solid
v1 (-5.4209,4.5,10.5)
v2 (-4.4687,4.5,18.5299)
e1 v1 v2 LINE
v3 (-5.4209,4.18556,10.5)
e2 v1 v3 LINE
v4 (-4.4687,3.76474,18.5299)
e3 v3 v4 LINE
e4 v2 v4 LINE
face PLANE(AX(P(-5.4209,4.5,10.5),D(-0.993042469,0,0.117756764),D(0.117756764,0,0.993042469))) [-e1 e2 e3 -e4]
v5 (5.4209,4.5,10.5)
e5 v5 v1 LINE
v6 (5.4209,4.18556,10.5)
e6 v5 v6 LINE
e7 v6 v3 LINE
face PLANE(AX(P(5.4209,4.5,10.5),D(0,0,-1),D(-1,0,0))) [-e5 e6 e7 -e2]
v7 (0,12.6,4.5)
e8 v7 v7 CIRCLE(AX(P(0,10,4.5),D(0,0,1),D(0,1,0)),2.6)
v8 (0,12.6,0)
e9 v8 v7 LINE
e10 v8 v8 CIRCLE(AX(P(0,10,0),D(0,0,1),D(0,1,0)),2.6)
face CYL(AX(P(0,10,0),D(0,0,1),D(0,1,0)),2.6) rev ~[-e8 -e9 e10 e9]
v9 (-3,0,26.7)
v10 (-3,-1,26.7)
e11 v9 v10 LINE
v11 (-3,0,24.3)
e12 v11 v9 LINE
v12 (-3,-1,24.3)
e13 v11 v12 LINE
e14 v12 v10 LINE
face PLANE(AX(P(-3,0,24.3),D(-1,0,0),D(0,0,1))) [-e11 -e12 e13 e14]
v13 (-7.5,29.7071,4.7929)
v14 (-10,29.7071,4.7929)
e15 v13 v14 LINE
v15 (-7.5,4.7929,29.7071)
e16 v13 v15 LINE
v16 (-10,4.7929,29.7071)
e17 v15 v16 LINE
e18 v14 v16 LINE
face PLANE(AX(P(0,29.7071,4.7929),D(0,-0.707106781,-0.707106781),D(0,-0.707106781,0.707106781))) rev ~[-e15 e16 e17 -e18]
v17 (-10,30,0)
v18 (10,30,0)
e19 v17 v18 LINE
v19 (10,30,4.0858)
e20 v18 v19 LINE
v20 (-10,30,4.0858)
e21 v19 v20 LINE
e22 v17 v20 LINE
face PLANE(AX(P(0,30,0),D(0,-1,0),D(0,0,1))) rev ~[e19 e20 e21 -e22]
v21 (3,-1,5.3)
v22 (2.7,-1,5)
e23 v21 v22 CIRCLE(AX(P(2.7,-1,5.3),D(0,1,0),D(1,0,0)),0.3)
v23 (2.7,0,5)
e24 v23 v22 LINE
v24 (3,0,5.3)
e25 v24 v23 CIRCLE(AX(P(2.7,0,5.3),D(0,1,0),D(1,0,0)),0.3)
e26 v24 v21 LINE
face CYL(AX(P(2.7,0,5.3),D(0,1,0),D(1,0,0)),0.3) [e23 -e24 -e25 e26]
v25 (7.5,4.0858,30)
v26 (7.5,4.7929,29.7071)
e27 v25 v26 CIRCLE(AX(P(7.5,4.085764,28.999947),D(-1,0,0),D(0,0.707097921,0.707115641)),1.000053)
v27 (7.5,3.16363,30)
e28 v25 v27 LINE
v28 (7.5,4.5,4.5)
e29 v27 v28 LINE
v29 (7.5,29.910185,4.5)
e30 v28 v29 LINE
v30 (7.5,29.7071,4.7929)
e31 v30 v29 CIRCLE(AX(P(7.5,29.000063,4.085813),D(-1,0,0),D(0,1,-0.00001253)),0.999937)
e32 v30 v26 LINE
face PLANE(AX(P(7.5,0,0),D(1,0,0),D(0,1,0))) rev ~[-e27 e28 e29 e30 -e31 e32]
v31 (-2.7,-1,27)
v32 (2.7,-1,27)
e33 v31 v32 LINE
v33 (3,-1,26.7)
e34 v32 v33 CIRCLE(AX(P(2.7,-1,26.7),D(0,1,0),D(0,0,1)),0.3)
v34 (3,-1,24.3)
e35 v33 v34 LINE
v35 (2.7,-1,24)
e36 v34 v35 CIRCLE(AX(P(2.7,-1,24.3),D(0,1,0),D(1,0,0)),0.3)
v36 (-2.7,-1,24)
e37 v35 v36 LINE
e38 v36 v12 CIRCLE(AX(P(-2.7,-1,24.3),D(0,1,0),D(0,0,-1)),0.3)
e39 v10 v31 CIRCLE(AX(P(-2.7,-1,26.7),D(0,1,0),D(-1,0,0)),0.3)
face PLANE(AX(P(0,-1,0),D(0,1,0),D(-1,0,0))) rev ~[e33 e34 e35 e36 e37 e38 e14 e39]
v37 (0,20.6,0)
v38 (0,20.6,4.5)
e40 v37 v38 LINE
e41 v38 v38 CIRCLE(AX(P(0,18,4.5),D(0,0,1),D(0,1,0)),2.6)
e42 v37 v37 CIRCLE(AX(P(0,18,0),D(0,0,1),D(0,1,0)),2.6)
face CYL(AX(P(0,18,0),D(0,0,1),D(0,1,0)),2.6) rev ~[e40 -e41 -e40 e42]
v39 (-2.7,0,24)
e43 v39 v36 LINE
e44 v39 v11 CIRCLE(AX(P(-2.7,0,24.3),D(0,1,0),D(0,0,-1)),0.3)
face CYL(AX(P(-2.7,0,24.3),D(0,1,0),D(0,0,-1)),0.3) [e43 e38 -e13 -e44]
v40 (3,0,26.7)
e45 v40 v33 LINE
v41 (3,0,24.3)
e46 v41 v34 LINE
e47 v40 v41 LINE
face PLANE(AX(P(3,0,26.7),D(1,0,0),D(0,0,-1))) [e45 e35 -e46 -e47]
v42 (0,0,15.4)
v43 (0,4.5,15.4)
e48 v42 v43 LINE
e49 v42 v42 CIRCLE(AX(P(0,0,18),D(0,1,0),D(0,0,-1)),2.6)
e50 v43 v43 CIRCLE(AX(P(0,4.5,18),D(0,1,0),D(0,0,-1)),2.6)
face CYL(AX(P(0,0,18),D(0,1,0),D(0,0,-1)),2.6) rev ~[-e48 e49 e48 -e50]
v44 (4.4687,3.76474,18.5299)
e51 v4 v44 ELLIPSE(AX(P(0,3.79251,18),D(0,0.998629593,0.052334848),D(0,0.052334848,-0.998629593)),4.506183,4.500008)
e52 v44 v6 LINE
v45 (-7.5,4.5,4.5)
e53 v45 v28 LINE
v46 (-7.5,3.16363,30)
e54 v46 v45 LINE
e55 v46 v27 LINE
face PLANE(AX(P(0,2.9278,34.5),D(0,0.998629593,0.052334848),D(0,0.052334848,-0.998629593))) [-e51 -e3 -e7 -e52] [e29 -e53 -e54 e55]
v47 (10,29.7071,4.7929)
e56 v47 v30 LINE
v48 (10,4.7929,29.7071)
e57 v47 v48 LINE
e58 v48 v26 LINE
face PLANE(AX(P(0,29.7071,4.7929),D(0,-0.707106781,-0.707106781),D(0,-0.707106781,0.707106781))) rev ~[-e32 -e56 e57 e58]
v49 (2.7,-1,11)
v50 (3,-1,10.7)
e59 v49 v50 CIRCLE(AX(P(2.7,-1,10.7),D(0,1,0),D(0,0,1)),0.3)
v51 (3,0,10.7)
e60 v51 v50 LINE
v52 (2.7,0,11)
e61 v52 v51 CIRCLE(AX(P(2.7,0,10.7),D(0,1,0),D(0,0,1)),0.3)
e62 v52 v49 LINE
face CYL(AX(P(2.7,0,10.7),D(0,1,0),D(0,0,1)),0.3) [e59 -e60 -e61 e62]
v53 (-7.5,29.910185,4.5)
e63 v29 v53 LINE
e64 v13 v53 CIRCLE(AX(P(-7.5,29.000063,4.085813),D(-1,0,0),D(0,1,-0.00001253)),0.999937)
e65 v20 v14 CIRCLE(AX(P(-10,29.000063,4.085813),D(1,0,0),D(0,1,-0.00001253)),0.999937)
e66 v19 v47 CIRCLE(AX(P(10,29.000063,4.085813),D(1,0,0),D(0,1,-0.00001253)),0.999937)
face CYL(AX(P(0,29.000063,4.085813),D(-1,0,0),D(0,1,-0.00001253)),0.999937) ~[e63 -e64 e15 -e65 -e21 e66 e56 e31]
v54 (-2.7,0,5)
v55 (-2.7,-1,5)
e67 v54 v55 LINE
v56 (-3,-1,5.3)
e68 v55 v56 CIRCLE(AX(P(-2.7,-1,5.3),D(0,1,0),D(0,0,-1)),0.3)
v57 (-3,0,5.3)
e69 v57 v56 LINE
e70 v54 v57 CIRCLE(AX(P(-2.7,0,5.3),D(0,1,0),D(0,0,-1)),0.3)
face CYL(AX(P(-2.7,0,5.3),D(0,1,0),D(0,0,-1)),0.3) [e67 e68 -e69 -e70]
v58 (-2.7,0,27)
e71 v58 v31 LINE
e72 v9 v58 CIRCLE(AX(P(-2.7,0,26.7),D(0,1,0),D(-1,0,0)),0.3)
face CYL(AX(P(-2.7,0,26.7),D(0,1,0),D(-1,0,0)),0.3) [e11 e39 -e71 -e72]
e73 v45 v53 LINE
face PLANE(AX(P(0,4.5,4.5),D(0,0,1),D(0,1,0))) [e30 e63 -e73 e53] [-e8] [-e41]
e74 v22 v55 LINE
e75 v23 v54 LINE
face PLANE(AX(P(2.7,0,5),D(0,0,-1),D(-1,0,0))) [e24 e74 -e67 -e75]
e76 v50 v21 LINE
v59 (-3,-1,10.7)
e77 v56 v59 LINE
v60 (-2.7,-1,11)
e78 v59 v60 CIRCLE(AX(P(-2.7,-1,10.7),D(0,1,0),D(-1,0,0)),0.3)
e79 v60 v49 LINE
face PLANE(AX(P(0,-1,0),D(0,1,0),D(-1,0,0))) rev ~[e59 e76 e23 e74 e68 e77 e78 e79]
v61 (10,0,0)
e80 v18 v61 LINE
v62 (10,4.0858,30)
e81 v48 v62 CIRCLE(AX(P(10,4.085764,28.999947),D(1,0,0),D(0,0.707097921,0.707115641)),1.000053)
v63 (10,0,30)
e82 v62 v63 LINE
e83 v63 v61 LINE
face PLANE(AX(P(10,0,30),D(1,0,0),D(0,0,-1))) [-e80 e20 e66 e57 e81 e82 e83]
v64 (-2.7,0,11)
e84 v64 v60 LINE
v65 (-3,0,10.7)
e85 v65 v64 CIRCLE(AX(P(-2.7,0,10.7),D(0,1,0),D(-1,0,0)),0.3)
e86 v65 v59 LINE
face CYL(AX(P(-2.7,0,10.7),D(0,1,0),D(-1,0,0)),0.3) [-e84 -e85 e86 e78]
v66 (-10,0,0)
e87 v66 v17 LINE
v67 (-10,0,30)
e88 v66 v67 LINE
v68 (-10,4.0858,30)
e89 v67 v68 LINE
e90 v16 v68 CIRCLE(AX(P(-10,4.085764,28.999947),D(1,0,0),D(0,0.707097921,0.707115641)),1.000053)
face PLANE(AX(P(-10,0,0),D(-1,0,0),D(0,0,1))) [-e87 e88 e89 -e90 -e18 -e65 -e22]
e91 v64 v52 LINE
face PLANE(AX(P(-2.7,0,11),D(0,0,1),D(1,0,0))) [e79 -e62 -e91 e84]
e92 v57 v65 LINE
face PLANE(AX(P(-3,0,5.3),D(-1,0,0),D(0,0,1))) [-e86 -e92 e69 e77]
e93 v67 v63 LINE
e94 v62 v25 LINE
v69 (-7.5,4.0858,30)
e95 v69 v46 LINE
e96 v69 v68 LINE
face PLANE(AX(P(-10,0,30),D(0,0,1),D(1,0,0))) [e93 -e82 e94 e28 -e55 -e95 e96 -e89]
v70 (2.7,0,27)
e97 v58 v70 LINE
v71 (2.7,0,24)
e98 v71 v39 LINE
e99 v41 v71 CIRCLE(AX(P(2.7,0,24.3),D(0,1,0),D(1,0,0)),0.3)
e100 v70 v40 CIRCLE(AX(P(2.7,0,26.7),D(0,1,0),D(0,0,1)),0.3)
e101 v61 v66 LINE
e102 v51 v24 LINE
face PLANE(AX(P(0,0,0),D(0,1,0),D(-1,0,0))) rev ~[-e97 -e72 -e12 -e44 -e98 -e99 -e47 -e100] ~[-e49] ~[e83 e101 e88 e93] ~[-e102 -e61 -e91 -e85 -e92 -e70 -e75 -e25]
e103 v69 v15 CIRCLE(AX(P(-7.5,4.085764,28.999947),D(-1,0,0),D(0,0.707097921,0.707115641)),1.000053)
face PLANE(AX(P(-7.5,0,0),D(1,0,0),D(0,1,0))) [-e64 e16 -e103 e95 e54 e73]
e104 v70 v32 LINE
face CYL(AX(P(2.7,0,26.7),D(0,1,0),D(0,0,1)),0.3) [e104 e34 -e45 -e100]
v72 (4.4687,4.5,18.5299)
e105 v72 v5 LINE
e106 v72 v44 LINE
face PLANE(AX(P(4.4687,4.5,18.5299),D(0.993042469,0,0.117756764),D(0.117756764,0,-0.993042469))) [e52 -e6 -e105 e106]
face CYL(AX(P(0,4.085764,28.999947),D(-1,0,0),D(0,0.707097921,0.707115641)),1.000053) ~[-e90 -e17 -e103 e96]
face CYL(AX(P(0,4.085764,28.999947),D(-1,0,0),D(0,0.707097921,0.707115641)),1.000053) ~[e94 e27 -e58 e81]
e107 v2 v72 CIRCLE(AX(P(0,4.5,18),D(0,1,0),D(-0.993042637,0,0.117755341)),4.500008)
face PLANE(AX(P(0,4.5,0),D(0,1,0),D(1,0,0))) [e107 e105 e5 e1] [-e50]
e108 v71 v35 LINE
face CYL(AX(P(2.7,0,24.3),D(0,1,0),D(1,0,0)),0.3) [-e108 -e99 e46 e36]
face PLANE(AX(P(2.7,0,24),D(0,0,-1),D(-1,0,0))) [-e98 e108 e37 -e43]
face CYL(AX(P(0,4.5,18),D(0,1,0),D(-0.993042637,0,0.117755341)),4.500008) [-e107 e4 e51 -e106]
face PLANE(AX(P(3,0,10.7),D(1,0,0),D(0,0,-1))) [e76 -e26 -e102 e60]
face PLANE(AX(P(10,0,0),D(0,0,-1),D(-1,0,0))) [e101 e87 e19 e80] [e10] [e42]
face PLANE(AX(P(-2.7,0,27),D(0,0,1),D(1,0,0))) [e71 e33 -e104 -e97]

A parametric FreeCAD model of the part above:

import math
import FreeCAD as App
import Part
import Sketcher
from FreeCAD import Vector
Q = App.Units.Quantity


def add_polygon(sketch, points):
    """Adds a closed chain of lines whose ends are joined by coincident constraints."""
    first, n = sketch.GeometryCount, len(points)
    for a, b in zip(points, points[1:] + points[:1]):
        sketch.addGeometry(Part.LineSegment(App.Vector(*a, 0), App.Vector(*b, 0)), False)
    for i in range(n):
        sketch.addConstraint(Sketcher.Constraint("Coincident", first + i, 2, first + (i + 1) % n, 1))

doc = App.newDocument("Part")
body = doc.addObject("PartDesign::Body", "Body")

sketch1 = body.newObject("Sketcher::SketchObject", "Sketch")
sketch1.AttachmentSupport = (doc.getObject("YZ_Plane"), [""])
sketch1.MapMode = "FlatFace"
sketch1.addGeometry(Part.LineSegment(Vector(4.1, 30, 0), Vector(0, 30, 0)), False)
sketch1.addGeometry(Part.LineSegment(Vector(0, 30, 0), Vector(0, 0, 0)), False)
sketch1.addGeometry(Part.LineSegment(Vector(0, 0, 0), Vector(30, 0, 0)), False)
sketch1.addGeometry(Part.LineSegment(Vector(30, 0, 0), Vector(30, 4.1, 0)), False)
sketch1.addGeometry(Part.ArcOfCircle(Part.Circle(Vector(29, 4.1, 0), Vector(0, 0, 1), 1), math.radians(0), math.radians(45)), False)
sketch1.addGeometry(Part.LineSegment(Vector(29.7, 4.8, 0), Vector(4.8, 29.7, 0)), False)
sketch1.addGeometry(Part.ArcOfCircle(Part.Circle(Vector(4.1, 29, 0), Vector(0, 0, 1), 1), math.radians(45), math.radians(90)), False)
sketch1.addConstraint(Sketcher.Constraint("Coincident", 0, 2, 1, 1))
sketch1.addConstraint(Sketcher.Constraint("Coincident", 1, 2, 2, 1))
sketch1.addConstraint(Sketcher.Constraint("Coincident", 2, 2, 3, 1))
sketch1.addConstraint(Sketcher.Constraint("Tangent", 3, 2, 4, 1))
sketch1.addConstraint(Sketcher.Constraint("Tangent", 4, 2, 5, 1))
sketch1.addConstraint(Sketcher.Constraint("Tangent", 5, 2, 6, 1))
sketch1.addConstraint(Sketcher.Constraint("Tangent", 6, 2, 0, 1))
sketch1.addConstraint(Sketcher.Constraint("Horizontal", 0))
sketch1.addConstraint(Sketcher.Constraint("Vertical", 1))
sketch1.addConstraint(Sketcher.Constraint("Horizontal", 2))
sketch1.addConstraint(Sketcher.Constraint("Vertical", 3))
sketch1.addConstraint(Sketcher.Constraint("Coincident", 1, 2, -1, 1))
sketch1.addConstraint(Sketcher.Constraint("Equal", 4, 6))
sketch1.addConstraint(Sketcher.Constraint("Equal", 2, 1))
sketch1.addConstraint(Sketcher.Constraint("Equal", 0, 3))
sketch1.addConstraint(Sketcher.Constraint("Radius", 4, 1.0))
sketch1.addConstraint(Sketcher.Constraint("DistanceX", 2, 1, 2, 2, 30.0))
sketch1.addConstraint(Sketcher.Constraint("Distance", 5, 35.234))
pad1 = body.newObject("PartDesign::Pad", "Pad")
pad1.Profile = sketch1
pad1.Length = 20
pad1.Midplane = True

sketch2 = body.newObject("Sketcher::SketchObject", "Sketch001")
sketch2.AttachmentSupport = (doc.getObject("YZ_Plane"), [""])
sketch2.MapMode = "FlatFace"
add_polygon(sketch2, [(34, 34), (3, 34), (4, 4), (34, 4)])
sketch2.addConstraint(Sketcher.Constraint("Horizontal", 0))
sketch2.addConstraint(Sketcher.Constraint("Horizontal", 2))
sketch2.addConstraint(Sketcher.Constraint("Vertical", 3))
sketch2.addConstraint(Sketcher.Constraint("Equal", 2, 3))
sketch2.addConstraint(Sketcher.Constraint("DistanceX", 2, 1, 2, 2, 30.0))
sketch2.addConstraint(Sketcher.Constraint("Angle", 1, Q("-87 deg")))
sketch2.addConstraint(Sketcher.Constraint("DistanceY", -1, 1, 0, 2, 34.5))
sketch2.addConstraint(Sketcher.Constraint("DistanceX", -1, 1, 1, 2, 4.5))
pocket1 = body.newObject("PartDesign::Pocket", "Pocket")
pocket1.Profile = sketch2
pocket1.Length = 15
pocket1.Midplane = True

sketch3 = body.newObject("Sketcher::SketchObject", "Sketch002")
sketch3.AttachmentSupport = (doc.getObject("XZ_Plane"), [""])
sketch3.MapMode = "FlatFace"
sketch3.AttachmentOffset = App.Placement(Vector(0, 0, -4.5), App.Rotation())
sketch3.addGeometry(Part.LineSegment(Vector(5.4, 10.5, 0), Vector(-5.4, 10.5, 0)), False)
sketch3.addGeometry(Part.LineSegment(Vector(-5.4, 10.5, 0), Vector(-4.5, 18.5, 0)), False)
sketch3.addGeometry(Part.ArcOfCircle(Part.Circle(Vector(0, 18, 0), Vector(0, 0, 1), 4.5), math.radians(7), math.radians(173)), False)
sketch3.addGeometry(Part.LineSegment(Vector(4.5, 18.5, 0), Vector(5.4, 10.5, 0)), False)
sketch3.addConstraint(Sketcher.Constraint("Coincident", 0, 2, 1, 1))
sketch3.addConstraint(Sketcher.Constraint("Tangent", 1, 2, 2, 2))
sketch3.addConstraint(Sketcher.Constraint("Tangent", 2, 1, 3, 1))
sketch3.addConstraint(Sketcher.Constraint("Coincident", 3, 2, 0, 1))
sketch3.addConstraint(Sketcher.Constraint("Horizontal", 0))
sketch3.addConstraint(Sketcher.Constraint("Symmetric", 1, 2, 2, 1, -2))
sketch3.addConstraint(Sketcher.Constraint("Radius", 2, 4.5))
sketch3.addConstraint(Sketcher.Constraint("DistanceY", -1, 1, 2, 3, 18.0))
sketch3.addConstraint(Sketcher.Constraint("DistanceY", -1, 1, 0, 2, 10.5))
sketch3.addConstraint(Sketcher.Constraint("DistanceY", -1, 1, 1, 2, 18.53))
pad2 = body.newObject("PartDesign::Pad", "Pad001")
pad2.Profile = sketch3
pad2.Length = 2.25

sketch4 = body.newObject("Sketcher::SketchObject", "Sketch003")
sketch4.AttachmentSupport = (doc.getObject("XY_Plane"), [""])
sketch4.MapMode = "FlatFace"
sketch4.addGeometry(Part.Circle(Vector(0, 18, 0), Vector(0, 0, 1), 2.6), False)
sketch4.addConstraint(Sketcher.Constraint("PointOnObject", 0, 3, -2))
sketch4.addConstraint(Sketcher.Constraint("Diameter", 0, 5.2))
sketch4.addConstraint(Sketcher.Constraint("DistanceY", -1, 1, 0, 3, 18.0))
doc.recompute()
hole = body.newObject("PartDesign::Hole", "Hole")
hole.Profile = sketch4
hole.ThreadType = "None"
hole.Diameter = 5.2
hole.DepthType = "Dimension"
hole.Depth = 4.5
hole.DrillPoint = "Flat"
hole.Reversed = True

sketch5 = body.newObject("Sketcher::SketchObject", "Sketch004")
sketch5.AttachmentSupport = (doc.getObject("XY_Plane"), [""])
sketch5.MapMode = "FlatFace"
sketch5.addGeometry(Part.Circle(Vector(0, 10, 0), Vector(0, 0, 1), 2.6), False)
sketch5.addConstraint(Sketcher.Constraint("PointOnObject", 0, 3, -2))
sketch5.addConstraint(Sketcher.Constraint("Diameter", 0, 5.2))
sketch5.addConstraint(Sketcher.Constraint("DistanceY", -1, 1, 0, 3, 10.0))
doc.recompute()
hole2 = body.newObject("PartDesign::Hole", "Hole001")
hole2.Profile = sketch5
hole2.ThreadType = "None"
hole2.Diameter = 5.2
hole2.DepthType = "Dimension"
hole2.Depth = 4.5
hole2.DrillPoint = "Flat"
hole2.Reversed = True

sketch6 = body.newObject("Sketcher::SketchObject", "Sketch005")
sketch6.AttachmentSupport = (doc.getObject("XZ_Plane"), [""])
sketch6.MapMode = "FlatFace"
sketch6.addGeometry(Part.Circle(Vector(0, 18, 0), Vector(0, 0, 1), 2.6), False)
sketch6.addConstraint(Sketcher.Constraint("PointOnObject", 0, 3, -2))
sketch6.addConstraint(Sketcher.Constraint("Diameter", 0, 5.2))
sketch6.addConstraint(Sketcher.Constraint("DistanceY", -1, 1, 0, 3, 18.0))
doc.recompute()
hole3 = body.newObject("PartDesign::Hole", "Hole002")
hole3.Profile = sketch6
hole3.ThreadType = "None"
hole3.Diameter = 5.2
hole3.DepthType = "Dimension"
hole3.Depth = 4.5
hole3.DrillPoint = "Flat"

sketch7 = body.newObject("Sketcher::SketchObject", "Sketch006")
sketch7.AttachmentSupport = (doc.getObject("XZ_Plane"), [""])
sketch7.MapMode = "FlatFace"
add_polygon(sketch7, [(10, 0), (-10, 0), (-10, 30), (10, 30)])
sketch7.addConstraint(Sketcher.Constraint("Horizontal", 0))
sketch7.addConstraint(Sketcher.Constraint("Vertical", 1))
sketch7.addConstraint(Sketcher.Constraint("Horizontal", 2))
sketch7.addConstraint(Sketcher.Constraint("Vertical", 3))
sketch7.addConstraint(Sketcher.Constraint("Symmetric", 0, 2, 3, 2, -1, 1))
sketch7.addConstraint(Sketcher.Constraint("DistanceX", 0, 2, 0, 1, 20.0))
sketch7.addConstraint(Sketcher.Constraint("DistanceY", 1, 1, 1, 2, 30.0))
pad3 = body.newObject("PartDesign::Pad", "Pad002")
pad3.Profile = sketch7
pad3.Length = 1

sketch8 = body.newObject("Sketcher::SketchObject", "Sketch007")
sketch8.AttachmentSupport = (doc.getObject("XZ_Plane"), [""])
sketch8.MapMode = "FlatFace"
add_polygon(sketch8, [(10, 0), (-10, 0), (-10, 30), (10, 30)])
sketch8.addGeometry(Part.ArcOfCircle(Part.Circle(Vector(-2.7, 10.7, 0), Vector(0, 0, 1), 0.3), math.radians(90), math.radians(180)), False)
sketch8.addGeometry(Part.LineSegment(Vector(-3, 10.7, 0), Vector(-3, 5.3, 0)), False)
sketch8.addGeometry(Part.ArcOfCircle(Part.Circle(Vector(-2.7, 5.3, 0), Vector(0, 0, 1), 0.3), math.radians(180), math.radians(270)), False)
sketch8.addGeometry(Part.LineSegment(Vector(-2.7, 5, 0), Vector(2.7, 5, 0)), False)
sketch8.addGeometry(Part.ArcOfCircle(Part.Circle(Vector(2.7, 5.3, 0), Vector(0, 0, 1), 0.3), math.radians(-90), math.radians(0)), False)
sketch8.addGeometry(Part.LineSegment(Vector(3, 5.3, 0), Vector(3, 10.7, 0)), False)
sketch8.addGeometry(Part.ArcOfCircle(Part.Circle(Vector(2.7, 10.7, 0), Vector(0, 0, 1), 0.3), math.radians(0), math.radians(90)), False)
sketch8.addGeometry(Part.LineSegment(Vector(2.7, 11, 0), Vector(-2.7, 11, 0)), False)
sketch8.addGeometry(Part.ArcOfCircle(Part.Circle(Vector(-2.7, 26.7, 0), Vector(0, 0, 1), 0.3), math.radians(90), math.radians(180)), False)
sketch8.addGeometry(Part.LineSegment(Vector(-3, 26.7, 0), Vector(-3, 24.3, 0)), False)
sketch8.addGeometry(Part.ArcOfCircle(Part.Circle(Vector(-2.7, 24.3, 0), Vector(0, 0, 1), 0.3), math.radians(180), math.radians(270)), False)
sketch8.addGeometry(Part.LineSegment(Vector(-2.7, 24, 0), Vector(2.7, 24, 0)), False)
sketch8.addGeometry(Part.ArcOfCircle(Part.Circle(Vector(2.7, 24.3, 0), Vector(0, 0, 1), 0.3), math.radians(-90), math.radians(0)), False)
sketch8.addGeometry(Part.LineSegment(Vector(3, 24.3, 0), Vector(3, 26.7, 0)), False)
sketch8.addGeometry(Part.ArcOfCircle(Part.Circle(Vector(2.7, 26.7, 0), Vector(0, 0, 1), 0.3), math.radians(0), math.radians(90)), False)
sketch8.addGeometry(Part.LineSegment(Vector(2.7, 27, 0), Vector(-2.7, 27, 0)), False)
sketch8.addConstraint(Sketcher.Constraint("Tangent", 4, 2, 5, 1))
sketch8.addConstraint(Sketcher.Constraint("Tangent", 5, 2, 6, 1))
sketch8.addConstraint(Sketcher.Constraint("Tangent", 6, 2, 7, 1))
sketch8.addConstraint(Sketcher.Constraint("Tangent", 7, 2, 8, 1))
sketch8.addConstraint(Sketcher.Constraint("Tangent", 8, 2, 9, 1))
sketch8.addConstraint(Sketcher.Constraint("Tangent", 9, 2, 10, 1))
sketch8.addConstraint(Sketcher.Constraint("Tangent", 10, 2, 11, 1))
sketch8.addConstraint(Sketcher.Constraint("Tangent", 11, 2, 4, 1))
sketch8.addConstraint(Sketcher.Constraint("Tangent", 12, 2, 13, 1))
sketch8.addConstraint(Sketcher.Constraint("Tangent", 13, 2, 14, 1))
sketch8.addConstraint(Sketcher.Constraint("Tangent", 14, 2, 15, 1))
sketch8.addConstraint(Sketcher.Constraint("Tangent", 15, 2, 16, 1))
sketch8.addConstraint(Sketcher.Constraint("Tangent", 16, 2, 17, 1))
sketch8.addConstraint(Sketcher.Constraint("Tangent", 17, 2, 18, 1))
sketch8.addConstraint(Sketcher.Constraint("Tangent", 18, 2, 19, 1))
sketch8.addConstraint(Sketcher.Constraint("Tangent", 19, 2, 12, 1))
sketch8.addConstraint(Sketcher.Constraint("Horizontal", 0))
sketch8.addConstraint(Sketcher.Constraint("Vertical", 1))
sketch8.addConstraint(Sketcher.Constraint("Horizontal", 2))
sketch8.addConstraint(Sketcher.Constraint("Vertical", 3))
sketch8.addConstraint(Sketcher.Constraint("Vertical", 5))
sketch8.addConstraint(Sketcher.Constraint("Horizontal", 7))
sketch8.addConstraint(Sketcher.Constraint("Vertical", 9))
sketch8.addConstraint(Sketcher.Constraint("Horizontal", 11))
sketch8.addConstraint(Sketcher.Constraint("Vertical", 13))
sketch8.addConstraint(Sketcher.Constraint("Horizontal", 15))
sketch8.addConstraint(Sketcher.Constraint("Vertical", 17))
sketch8.addConstraint(Sketcher.Constraint("Horizontal", 19))
sketch8.addConstraint(Sketcher.Constraint("Equal", 4, 6))
sketch8.addConstraint(Sketcher.Constraint("Equal", 6, 8))
sketch8.addConstraint(Sketcher.Constraint("Equal", 8, 10))
sketch8.addConstraint(Sketcher.Constraint("Equal", 10, 12))
sketch8.addConstraint(Sketcher.Constraint("Equal", 12, 14))
sketch8.addConstraint(Sketcher.Constraint("Equal", 14, 16))
sketch8.addConstraint(Sketcher.Constraint("Equal", 16, 18))
sketch8.addConstraint(Sketcher.Constraint("Symmetric", 0, 2, 3, 2, -1, 1))
sketch8.addConstraint(Sketcher.Constraint("Vertical", 6, 3, 12, 3))
sketch8.addConstraint(Sketcher.Constraint("Vertical", 10, 3, 16, 3))
sketch8.addConstraint(Sketcher.Constraint("Equal", 19, 5))
sketch8.addConstraint(Sketcher.Constraint("Radius", 4, 0.3))
sketch8.addConstraint(Sketcher.Constraint("DistanceX", 0, 2, 0, 1, 20.0))
sketch8.addConstraint(Sketcher.Constraint("DistanceY", 1, 1, 1, 2, 30.0))
sketch8.addConstraint(Sketcher.Constraint("DistanceX", 7, 1, 7, 2, 5.4))
sketch8.addConstraint(Sketcher.Constraint("DistanceY", 13, 2, 13, 1, 2.4))
sketch8.addConstraint(Sketcher.Constraint("DistanceX", 4, 2, -1, 1, 3.0))
sketch8.addConstraint(Sketcher.Constraint("DistanceY", -1, 1, 6, 2, 5.0))
sketch8.addConstraint(Sketcher.Constraint("DistanceY", -1, 1, 14, 2, 24.0))
pocket2 = body.newObject("PartDesign::Pocket", "Pocket001")
pocket2.Profile = sketch8
pocket2.Length = 1
pocket2.Reversed = True

doc.recompute()
